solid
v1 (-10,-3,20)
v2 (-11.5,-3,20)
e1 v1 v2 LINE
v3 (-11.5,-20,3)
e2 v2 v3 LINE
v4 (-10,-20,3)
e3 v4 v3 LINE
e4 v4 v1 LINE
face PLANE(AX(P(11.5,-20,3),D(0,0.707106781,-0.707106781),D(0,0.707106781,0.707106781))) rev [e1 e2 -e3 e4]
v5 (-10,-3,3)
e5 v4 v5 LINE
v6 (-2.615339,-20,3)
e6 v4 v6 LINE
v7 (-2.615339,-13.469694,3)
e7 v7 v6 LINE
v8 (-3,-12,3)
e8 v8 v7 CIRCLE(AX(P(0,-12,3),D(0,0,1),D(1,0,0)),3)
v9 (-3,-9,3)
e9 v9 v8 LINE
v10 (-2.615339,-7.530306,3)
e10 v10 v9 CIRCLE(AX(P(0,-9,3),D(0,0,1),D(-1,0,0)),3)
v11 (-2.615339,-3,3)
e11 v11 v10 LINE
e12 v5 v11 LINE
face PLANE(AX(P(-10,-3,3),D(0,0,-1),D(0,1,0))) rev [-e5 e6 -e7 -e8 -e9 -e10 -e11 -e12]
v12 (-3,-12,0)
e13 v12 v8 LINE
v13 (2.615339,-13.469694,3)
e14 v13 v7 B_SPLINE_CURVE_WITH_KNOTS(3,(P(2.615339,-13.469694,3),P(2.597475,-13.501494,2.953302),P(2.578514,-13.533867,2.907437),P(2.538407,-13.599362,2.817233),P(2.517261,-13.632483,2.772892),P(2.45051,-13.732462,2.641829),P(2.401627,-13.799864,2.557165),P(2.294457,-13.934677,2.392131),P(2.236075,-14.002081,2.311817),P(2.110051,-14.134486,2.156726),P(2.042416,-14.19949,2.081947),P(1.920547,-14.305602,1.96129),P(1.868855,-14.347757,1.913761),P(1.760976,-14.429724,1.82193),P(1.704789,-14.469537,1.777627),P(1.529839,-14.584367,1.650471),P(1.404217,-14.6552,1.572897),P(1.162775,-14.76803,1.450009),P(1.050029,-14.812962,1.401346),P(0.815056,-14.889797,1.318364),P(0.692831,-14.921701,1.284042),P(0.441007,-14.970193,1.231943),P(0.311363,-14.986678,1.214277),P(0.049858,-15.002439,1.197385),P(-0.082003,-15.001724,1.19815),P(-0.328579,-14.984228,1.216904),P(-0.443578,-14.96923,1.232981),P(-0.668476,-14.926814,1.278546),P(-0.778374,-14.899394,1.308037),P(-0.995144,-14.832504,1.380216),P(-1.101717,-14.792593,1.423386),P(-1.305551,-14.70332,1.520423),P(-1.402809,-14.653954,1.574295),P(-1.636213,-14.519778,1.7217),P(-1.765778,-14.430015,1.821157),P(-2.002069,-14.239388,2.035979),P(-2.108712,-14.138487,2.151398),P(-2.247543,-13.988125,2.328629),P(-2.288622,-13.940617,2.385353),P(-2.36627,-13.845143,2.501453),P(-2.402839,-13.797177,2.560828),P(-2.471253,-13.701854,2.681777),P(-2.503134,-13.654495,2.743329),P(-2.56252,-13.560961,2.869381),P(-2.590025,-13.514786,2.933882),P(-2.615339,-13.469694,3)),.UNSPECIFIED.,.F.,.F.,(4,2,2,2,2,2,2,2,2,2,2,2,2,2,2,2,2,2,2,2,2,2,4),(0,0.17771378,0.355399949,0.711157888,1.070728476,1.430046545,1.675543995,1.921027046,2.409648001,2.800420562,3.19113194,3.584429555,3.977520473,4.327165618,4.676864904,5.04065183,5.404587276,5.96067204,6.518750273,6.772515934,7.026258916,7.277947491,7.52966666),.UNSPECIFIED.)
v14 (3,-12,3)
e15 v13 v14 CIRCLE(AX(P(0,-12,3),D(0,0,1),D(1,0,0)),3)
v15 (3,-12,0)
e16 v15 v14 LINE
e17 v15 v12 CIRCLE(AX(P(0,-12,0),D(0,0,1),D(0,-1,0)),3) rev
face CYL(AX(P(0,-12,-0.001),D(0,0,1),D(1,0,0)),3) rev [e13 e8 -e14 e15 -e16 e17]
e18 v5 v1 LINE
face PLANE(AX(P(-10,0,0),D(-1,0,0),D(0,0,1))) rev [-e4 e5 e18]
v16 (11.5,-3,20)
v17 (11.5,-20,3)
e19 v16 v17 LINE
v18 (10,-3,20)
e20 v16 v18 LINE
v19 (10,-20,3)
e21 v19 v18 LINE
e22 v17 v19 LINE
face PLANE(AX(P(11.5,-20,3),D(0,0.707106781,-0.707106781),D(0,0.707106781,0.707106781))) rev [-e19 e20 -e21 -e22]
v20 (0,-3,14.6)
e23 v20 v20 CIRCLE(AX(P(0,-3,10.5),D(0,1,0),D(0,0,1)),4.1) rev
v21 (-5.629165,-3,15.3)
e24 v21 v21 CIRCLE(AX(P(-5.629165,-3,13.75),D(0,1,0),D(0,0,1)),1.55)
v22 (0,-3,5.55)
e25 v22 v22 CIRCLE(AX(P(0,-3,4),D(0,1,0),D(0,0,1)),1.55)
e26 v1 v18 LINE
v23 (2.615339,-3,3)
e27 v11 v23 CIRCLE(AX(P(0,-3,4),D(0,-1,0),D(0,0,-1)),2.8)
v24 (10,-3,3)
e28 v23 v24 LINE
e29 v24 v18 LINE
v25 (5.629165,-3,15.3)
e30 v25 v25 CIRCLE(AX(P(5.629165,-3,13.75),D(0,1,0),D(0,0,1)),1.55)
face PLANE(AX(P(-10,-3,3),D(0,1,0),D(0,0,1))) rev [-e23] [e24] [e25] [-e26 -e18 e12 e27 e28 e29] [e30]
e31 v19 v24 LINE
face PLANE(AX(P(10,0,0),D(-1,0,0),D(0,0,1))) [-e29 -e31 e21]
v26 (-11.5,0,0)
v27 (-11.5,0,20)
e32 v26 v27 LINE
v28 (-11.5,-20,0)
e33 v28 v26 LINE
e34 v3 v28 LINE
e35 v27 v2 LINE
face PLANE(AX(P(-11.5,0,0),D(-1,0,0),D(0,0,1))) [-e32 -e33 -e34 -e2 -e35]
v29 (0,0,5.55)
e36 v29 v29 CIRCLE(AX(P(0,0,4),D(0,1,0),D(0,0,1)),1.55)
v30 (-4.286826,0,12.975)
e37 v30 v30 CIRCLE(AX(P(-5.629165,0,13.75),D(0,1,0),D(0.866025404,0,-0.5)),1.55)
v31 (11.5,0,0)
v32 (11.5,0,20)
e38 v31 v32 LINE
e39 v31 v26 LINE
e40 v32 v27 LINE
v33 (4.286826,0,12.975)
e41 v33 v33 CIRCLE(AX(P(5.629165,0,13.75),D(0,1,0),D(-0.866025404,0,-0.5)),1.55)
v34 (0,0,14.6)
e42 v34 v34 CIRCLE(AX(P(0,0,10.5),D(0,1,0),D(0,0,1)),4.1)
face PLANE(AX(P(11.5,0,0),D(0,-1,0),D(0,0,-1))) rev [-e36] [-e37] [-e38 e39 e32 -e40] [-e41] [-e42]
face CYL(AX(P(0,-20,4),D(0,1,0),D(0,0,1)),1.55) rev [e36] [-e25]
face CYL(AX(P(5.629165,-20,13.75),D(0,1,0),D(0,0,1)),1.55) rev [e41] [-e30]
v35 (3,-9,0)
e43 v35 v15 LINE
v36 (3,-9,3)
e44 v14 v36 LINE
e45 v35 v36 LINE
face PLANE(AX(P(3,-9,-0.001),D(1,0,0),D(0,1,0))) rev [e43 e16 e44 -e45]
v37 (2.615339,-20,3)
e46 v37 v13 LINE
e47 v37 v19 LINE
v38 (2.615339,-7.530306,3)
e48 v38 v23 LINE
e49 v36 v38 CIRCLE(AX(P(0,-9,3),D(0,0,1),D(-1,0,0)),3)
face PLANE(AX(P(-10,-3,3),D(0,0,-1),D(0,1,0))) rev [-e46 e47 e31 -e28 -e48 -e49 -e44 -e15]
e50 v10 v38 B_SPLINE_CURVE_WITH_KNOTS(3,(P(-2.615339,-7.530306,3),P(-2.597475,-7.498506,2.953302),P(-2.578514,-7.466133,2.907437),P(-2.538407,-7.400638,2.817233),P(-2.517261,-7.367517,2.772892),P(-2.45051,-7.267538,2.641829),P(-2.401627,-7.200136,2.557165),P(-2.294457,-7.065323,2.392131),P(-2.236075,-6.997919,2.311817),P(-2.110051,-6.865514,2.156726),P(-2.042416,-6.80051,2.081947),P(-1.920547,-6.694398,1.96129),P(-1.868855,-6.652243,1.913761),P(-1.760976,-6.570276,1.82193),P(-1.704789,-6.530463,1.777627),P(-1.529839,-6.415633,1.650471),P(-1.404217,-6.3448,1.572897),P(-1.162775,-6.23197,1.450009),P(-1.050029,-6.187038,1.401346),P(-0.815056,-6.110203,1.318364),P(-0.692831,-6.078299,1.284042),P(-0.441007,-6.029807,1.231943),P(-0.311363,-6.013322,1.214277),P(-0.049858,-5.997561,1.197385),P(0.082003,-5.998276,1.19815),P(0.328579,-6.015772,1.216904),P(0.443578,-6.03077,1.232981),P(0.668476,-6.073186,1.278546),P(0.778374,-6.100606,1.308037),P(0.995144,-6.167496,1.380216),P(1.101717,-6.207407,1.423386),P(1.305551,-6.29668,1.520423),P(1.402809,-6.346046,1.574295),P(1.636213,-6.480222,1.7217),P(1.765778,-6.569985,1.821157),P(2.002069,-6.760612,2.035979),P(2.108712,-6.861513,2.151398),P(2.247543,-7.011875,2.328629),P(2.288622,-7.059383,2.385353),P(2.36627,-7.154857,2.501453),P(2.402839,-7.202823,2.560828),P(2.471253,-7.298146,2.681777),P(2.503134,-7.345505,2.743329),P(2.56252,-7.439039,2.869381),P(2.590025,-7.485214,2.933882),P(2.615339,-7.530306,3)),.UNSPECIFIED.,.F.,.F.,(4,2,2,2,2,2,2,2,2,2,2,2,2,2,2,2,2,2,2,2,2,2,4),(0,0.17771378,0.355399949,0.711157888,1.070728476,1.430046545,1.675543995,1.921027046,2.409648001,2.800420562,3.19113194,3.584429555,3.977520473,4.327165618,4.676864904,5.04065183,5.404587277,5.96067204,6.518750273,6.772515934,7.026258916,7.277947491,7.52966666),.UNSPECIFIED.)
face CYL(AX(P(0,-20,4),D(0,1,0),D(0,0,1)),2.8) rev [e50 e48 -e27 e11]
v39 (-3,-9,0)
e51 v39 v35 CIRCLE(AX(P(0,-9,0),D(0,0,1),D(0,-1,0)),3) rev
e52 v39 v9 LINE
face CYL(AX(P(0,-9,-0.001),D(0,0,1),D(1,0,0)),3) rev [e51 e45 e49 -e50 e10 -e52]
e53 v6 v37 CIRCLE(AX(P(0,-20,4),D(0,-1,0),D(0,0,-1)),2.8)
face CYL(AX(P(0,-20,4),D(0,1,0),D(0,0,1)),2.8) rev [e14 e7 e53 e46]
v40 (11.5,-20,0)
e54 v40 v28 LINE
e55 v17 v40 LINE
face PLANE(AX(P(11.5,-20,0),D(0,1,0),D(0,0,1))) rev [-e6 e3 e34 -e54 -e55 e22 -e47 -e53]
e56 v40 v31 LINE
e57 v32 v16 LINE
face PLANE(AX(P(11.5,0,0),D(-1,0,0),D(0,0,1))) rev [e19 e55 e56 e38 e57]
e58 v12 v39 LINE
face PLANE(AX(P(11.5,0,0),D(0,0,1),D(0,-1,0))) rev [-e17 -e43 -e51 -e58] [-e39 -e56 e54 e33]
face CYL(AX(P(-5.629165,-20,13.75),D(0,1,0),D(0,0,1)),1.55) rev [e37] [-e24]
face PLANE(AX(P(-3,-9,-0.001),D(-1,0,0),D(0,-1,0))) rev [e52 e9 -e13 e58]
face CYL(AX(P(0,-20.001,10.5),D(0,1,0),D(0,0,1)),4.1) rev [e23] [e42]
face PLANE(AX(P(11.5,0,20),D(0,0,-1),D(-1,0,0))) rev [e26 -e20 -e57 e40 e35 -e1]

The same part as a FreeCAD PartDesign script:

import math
import FreeCAD as App
import Part
import Sketcher
from FreeCAD import Vector
Q = App.Units.Quantity

doc = App.newDocument("Part")
body = doc.addObject("PartDesign::Body", "Body")

sketch1 = doc.addObject("Sketcher::SketchObject", "Sketch")
body.addObject(sketch1)
sketch1.AttachmentSupport = (doc.YZ_Plane, [""])
sketch1.MapMode = "FlatFace"
sketch1.addGeometry([
    Part.LineSegment(Vector(0, 0, 0), Vector(0, 20, 0)),
    Part.LineSegment(Vector(0, 20, 0), Vector(-3, 20, 0)),
    Part.LineSegment(Vector(-3, 20, 0), Vector(-20, 3, 0)),
    Part.LineSegment(Vector(-20, 3, 0), Vector(-20, 0, 0)),
    Part.LineSegment(Vector(-20, 0, 0), Vector(0, 0, 0)),
], False)
sketch1.addConstraint([
    Sketcher.Constraint("Coincident", 0, 2, 1, 1),
    Sketcher.Constraint("Coincident", 1, 2, 2, 1),
    Sketcher.Constraint("Coincident", 2, 2, 3, 1),
    Sketcher.Constraint("Coincident", 3, 2, 4, 1),
    Sketcher.Constraint("Coincident", 4, 2, 0, 1),
    Sketcher.Constraint("Vertical", 0),
    Sketcher.Constraint("Horizontal", 1),
    Sketcher.Constraint("Vertical", 3),
    Sketcher.Constraint("Horizontal", 4),
    Sketcher.Constraint("Coincident", 4, 2, -1, 1),
    Sketcher.Constraint("Equal", 4, 0),
    Sketcher.Constraint("Equal", 1, 3),
    Sketcher.Constraint("DistanceX", 1, 2, 1, 1, Q("3 mm")),
    Sketcher.Constraint("DistanceX", 4, 1, 4, 2, Q("20 mm")),
])
pad1 = doc.addObject("PartDesign::Pad", "Pad")
body.addObject(pad1)
pad1.Profile = sketch1
pad1.Length = 23
pad1.Midplane = True

sketch2 = doc.addObject("Sketcher::SketchObject", "Sketch001")
body.addObject(sketch2)
sketch2.AttachmentSupport = (doc.YZ_Plane, [""])
sketch2.MapMode = "FlatFace"
sketch2.addGeometry([
    Part.LineSegment(Vector(-3, 20, 0), Vector(-20, 20, 0)),
    Part.LineSegment(Vector(-20, 20, 0), Vector(-20, 3, 0)),
    Part.LineSegment(Vector(-20, 3, 0), Vector(-3, 3, 0)),
    Part.LineSegment(Vector(-3, 3, 0), Vector(-3, 20, 0)),
], False)
sketch2.addConstraint([
    Sketcher.Constraint("Coincident", 0, 2, 1, 1),
    Sketcher.Constraint("Coincident", 1, 2, 2, 1),
    Sketcher.Constraint("Coincident", 2, 2, 3, 1),
    Sketcher.Constraint("Coincident", 3, 2, 0, 1),
    Sketcher.Constraint("Horizontal", 0),
    Sketcher.Constraint("Vertical", 1),
    Sketcher.Constraint("Horizontal", 2),
    Sketcher.Constraint("Vertical", 3),
    Sketcher.Constraint("Equal", 2, 1),
    Sketcher.Constraint("DistanceX", 0, 2, 0, 1, Q("17 mm")),
    Sketcher.Constraint("DistanceX", 0, 2, -1, 1, Q("20 mm")),
    Sketcher.Constraint("DistanceY", -1, 1, 0, 2, Q("20 mm")),
])
pocket1 = doc.addObject("PartDesign::Pocket", "Pocket")
body.addObject(pocket1)
pocket1.Profile = sketch2
pocket1.Length = 20
pocket1.Midplane = True

sketch3 = doc.addObject("Sketcher::SketchObject", "Sketch002")
body.addObject(sketch3)
sketch3.AttachmentSupport = (doc.XY_Plane, [""])
sketch3.MapMode = "FlatFace"
sketch3.AttachmentOffset = App.Placement(Vector(0, 0, 3), App.Rotation())
sketch3.addGeometry([
    Part.LineSegment(Vector(-3, -9, 0), Vector(-3, -12, 0)),
    Part.ArcOfCircle(Part.Circle(Vector(0, -12, 0), Vector(0, 0, 1), 3), math.radians(180), math.radians(360)),
    Part.LineSegment(Vector(3, -12, 0), Vector(3, -9, 0)),
    Part.ArcOfCircle(Part.Circle(Vector(0, -9, 0), Vector(0, 0, 1), 3), math.radians(0), math.radians(180)),
], False)
sketch3.addConstraint([
    Sketcher.Constraint("Tangent", 0, 2, 1, 1),
    Sketcher.Constraint("Tangent", 1, 2, 2, 1),
    Sketcher.Constraint("Tangent", 2, 2, 3, 1),
    Sketcher.Constraint("Tangent", 3, 2, 0, 1),
    Sketcher.Constraint("Vertical", 0),
    Sketcher.Constraint("Vertical", 2),
    Sketcher.Constraint("PointOnObject", 1, 3, -2),
    Sketcher.Constraint("Radius", 1, Q("3 mm")),
    Sketcher.Constraint("DistanceY", 0, 2, 0, 1, Q("3 mm")),
    Sketcher.Constraint("DistanceY", 1, 3, -1, 1, Q("12 mm")),
])
pocket2 = doc.addObject("PartDesign::Pocket", "Pocket001")
body.addObject(pocket2)
pocket2.Profile = sketch3
pocket2.Type = "UpToFirst"

sketch4 = doc.addObject("Sketcher::SketchObject", "Sketch003")
body.addObject(sketch4)
sketch4.AttachmentSupport = (doc.XZ_Plane, [""])
sketch4.MapMode = "FlatFace"
sketch4.addGeometry(Part.Circle(Vector(0, 10.5, 0), Vector(0, 0, 1), 4.1), False)
sketch4.addConstraint([
    Sketcher.Constraint("PointOnObject", 0, 3, -2),
    Sketcher.Constraint("Diameter", 0, Q("8.2 mm")),
    Sketcher.Constraint("DistanceY", -1, 1, 0, 3, Q("10.5 mm")),
])
pocket3 = doc.addObject("PartDesign::Pocket", "Pocket002")
body.addObject(pocket3)
pocket3.Profile = sketch4
pocket3.Type = "UpToFirst"
pocket3.Reversed = True

sketch5 = doc.addObject("Sketcher::SketchObject", "Sketch004")
body.addObject(sketch5)
sketch5.AttachmentSupport = (doc.XZ_Plane, [""])
sketch5.MapMode = "FlatFace"
sketch5.addGeometry(Part.Circle(Vector(0, 4, 0), Vector(0, 0, 1), 1.6), False)
sketch5.addConstraint([
    Sketcher.Constraint("PointOnObject", 0, 3, -2),
    Sketcher.Constraint("Diameter", 0, Q("3.1 mm")),
    Sketcher.Constraint("DistanceY", -1, 1, 0, 3, Q("4 mm")),
])
pocket4 = doc.addObject("PartDesign::Pocket", "Pocket003")
body.addObject(pocket4)
pocket4.Profile = sketch5
pocket4.Type = "ThroughAll"
pocket4.Reversed = True
doc.recompute()

datumline = doc.addObject("PartDesign::Line", "DatumLine")
body.addObject(datumline)
datumline.Placement = App.Placement(Vector(0, 0, 10.5), App.Rotation(Vector(0, 0, 1), Vector(0, 1, 0)))
polarpattern = doc.addObject("PartDesign::PolarPattern", "PolarPattern")
body.addObject(polarpattern)
polarpattern.Originals = [pocket4]
polarpattern.Axis = (datumline, [""])
polarpattern.Angle = 360
polarpattern.Occurrences = 3
body.Tip = polarpattern

sketch6 = doc.addObject("Sketcher::SketchObject", "Sketch005")
body.addObject(sketch6)
sketch6.AttachmentSupport = (doc.XZ_Plane, [""])
sketch6.MapMode = "FlatFace"
sketch6.AttachmentOffset = App.Placement(Vector(0, 0, 3), App.Rotation())
sketch6.addGeometry(Part.Circle(Vector(0, 4, 0), Vector(0, 0, 1), 2.8), False)
sketch6.addConstraint([
    Sketcher.Constraint("PointOnObject", 0, 3, -2),
    Sketcher.Constraint("Diameter", 0, Q("5.6 mm")),
    Sketcher.Constraint("DistanceY", -1, 1, 0, 3, Q("4 mm")),
])
pocket5 = doc.addObject("PartDesign::Pocket", "Pocket004")
body.addObject(pocket5)
pocket5.Profile = sketch6
pocket5.Type = "ThroughAll"
pocket5.Reversed = True

doc.recompute()
